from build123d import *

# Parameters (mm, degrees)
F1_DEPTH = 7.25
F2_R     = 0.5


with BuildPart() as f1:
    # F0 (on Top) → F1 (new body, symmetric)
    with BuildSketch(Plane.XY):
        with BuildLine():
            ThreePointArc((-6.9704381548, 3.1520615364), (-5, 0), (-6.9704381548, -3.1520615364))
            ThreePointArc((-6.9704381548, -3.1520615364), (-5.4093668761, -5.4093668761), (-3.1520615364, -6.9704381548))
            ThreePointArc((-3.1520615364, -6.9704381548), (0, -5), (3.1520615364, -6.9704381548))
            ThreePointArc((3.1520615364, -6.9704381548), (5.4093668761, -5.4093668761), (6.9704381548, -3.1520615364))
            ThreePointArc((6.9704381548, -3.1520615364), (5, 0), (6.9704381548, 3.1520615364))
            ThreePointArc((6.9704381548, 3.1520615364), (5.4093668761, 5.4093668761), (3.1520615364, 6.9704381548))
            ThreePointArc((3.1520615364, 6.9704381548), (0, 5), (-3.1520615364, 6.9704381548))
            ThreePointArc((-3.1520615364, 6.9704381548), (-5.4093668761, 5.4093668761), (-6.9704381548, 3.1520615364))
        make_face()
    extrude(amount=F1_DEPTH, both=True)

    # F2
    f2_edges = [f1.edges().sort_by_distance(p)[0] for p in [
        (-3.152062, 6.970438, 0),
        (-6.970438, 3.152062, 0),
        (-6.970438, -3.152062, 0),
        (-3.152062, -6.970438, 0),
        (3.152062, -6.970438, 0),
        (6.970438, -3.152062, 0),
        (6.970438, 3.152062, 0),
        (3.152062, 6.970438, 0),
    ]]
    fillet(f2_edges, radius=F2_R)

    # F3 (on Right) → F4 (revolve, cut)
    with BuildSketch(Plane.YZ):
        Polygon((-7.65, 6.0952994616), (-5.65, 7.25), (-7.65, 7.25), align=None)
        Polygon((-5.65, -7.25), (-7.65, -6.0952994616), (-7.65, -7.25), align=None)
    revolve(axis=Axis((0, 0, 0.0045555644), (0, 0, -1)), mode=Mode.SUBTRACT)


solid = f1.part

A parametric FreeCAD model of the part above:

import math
import FreeCAD as App
import Part
import Sketcher
Q = App.Units.Quantity


def edges_at(feature, points):
    """Names of the edges that pass closest to the given points."""
    edges = feature.Shape.Edges
    near = lambda p: min(range(len(edges)), key=lambda i: edges[i].distToShape(Part.Vertex(*p))[0])
    return sorted({f"Edge{near(p) + 1}" for p in points})

doc = App.newDocument("Part")
params = doc.addObject("Spreadsheet::Sheet", "Params")
for row, (alias, value) in enumerate([
    ("sketch1_radius", "7.65 mm"),
    ("pad1_length", "14.5 mm"),
    ("fillet_radius", "0.5 mm"),
    ("sketch2_width", "2 mm"),
    ("groove_angle", "360 deg"),
], start=1):
    params.set(f"A{row}", alias)
    params.set(f"B{row}", "=" + value)
    params.setAlias(f"B{row}", alias)

body = doc.addObject("PartDesign::Body", "Body")

sketch1 = body.newObject("Sketcher::SketchObject", "Sketch")
sketch1.AttachmentSupport = (doc.getObject("XY_Plane"), [""])
sketch1.MapMode = "FlatFace"
sketch1.addGeometry(Part.ArcOfCircle(Part.Circle(App.Vector(-8.506357, 0, 0), App.Vector(0, 0, 1), 3.506357), math.radians(-64.021215), math.radians(64.021215)), False)
sketch1.addGeometry(Part.ArcOfCircle(Part.Circle(App.Vector(0, 0, 0), App.Vector(0, 0, 1), 7.65), math.radians(-155.667317), math.radians(-114.332683)), False)
sketch1.addGeometry(Part.ArcOfCircle(Part.Circle(App.Vector(0, -8.506357, 0), App.Vector(0, 0, 1), 3.506357), math.radians(25.978785), math.radians(154.021215)), False)
sketch1.addGeometry(Part.ArcOfCircle(Part.Circle(App.Vector(0, 0, 0), App.Vector(0, 0, 1), 7.65), math.radians(-65.667317), math.radians(-24.332683)), False)
sketch1.addGeometry(Part.ArcOfCircle(Part.Circle(App.Vector(8.506357, 0, 0), App.Vector(0, 0, 1), 3.506357), math.radians(115.978785), math.radians(244.021215)), False)
sketch1.addGeometry(Part.ArcOfCircle(Part.Circle(App.Vector(0, 0, 0), App.Vector(0, 0, 1), 7.65), math.radians(24.332683), math.radians(65.667317)), False)
sketch1.addGeometry(Part.ArcOfCircle(Part.Circle(App.Vector(0, 8.506357, 0), App.Vector(0, 0, 1), 3.506357), math.radians(-154.021215), math.radians(-25.978785)), False)
sketch1.addGeometry(Part.ArcOfCircle(Part.Circle(App.Vector(0, 0, 0), App.Vector(0, 0, 1), 7.65), math.radians(114.332683), math.radians(155.667317)), False)
sketch1.addConstraint(Sketcher.Constraint("Coincident", 0, 1, 1, 1))
sketch1.addConstraint(Sketcher.Constraint("Coincident", 1, 2, 2, 2))
sketch1.addConstraint(Sketcher.Constraint("Coincident", 2, 1, 3, 1))
sketch1.addConstraint(Sketcher.Constraint("Coincident", 3, 2, 4, 2))
sketch1.addConstraint(Sketcher.Constraint("Coincident", 4, 1, 5, 1))
sketch1.addConstraint(Sketcher.Constraint("Coincident", 5, 2, 6, 2))
sketch1.addConstraint(Sketcher.Constraint("Coincident", 6, 1, 7, 1))
sketch1.addConstraint(Sketcher.Constraint("Coincident", 7, 2, 0, 2))
sketch1.addConstraint(Sketcher.Constraint("Coincident", 1, 3, -1, 1))
sketch1.addConstraint(Sketcher.Constraint("Coincident", 3, 3, -1, 1))
sketch1.addConstraint(Sketcher.Constraint("Coincident", 5, 3, -1, 1))
sketch1.addConstraint(Sketcher.Constraint("Coincident", 7, 3, -1, 1))
sketch1.addConstraint(Sketcher.Constraint("Equal", 0, 2))
sketch1.addConstraint(Sketcher.Constraint("Equal", 1, 3))
sketch1.addConstraint(Sketcher.Constraint("Equal", 2, 4))
sketch1.addConstraint(Sketcher.Constraint("Equal", 3, 5))
sketch1.addConstraint(Sketcher.Constraint("Equal", 4, 6))
sketch1.addConstraint(Sketcher.Constraint("Equal", 5, 7))
sketch1.addConstraint(Sketcher.Constraint("Symmetric", 0, 3, 4, 3, -1, 1))
sketch1.addConstraint(Sketcher.Constraint("Symmetric", 2, 3, 6, 3, -1, 1))
sketch1.addConstraint(Sketcher.Constraint("PointOnObject", 0, 3, -1))
sketch1.addConstraint(Sketcher.Constraint("PointOnObject", 2, 3, -2))
sketch1.addConstraint(Sketcher.Constraint("Radius", 1, 7.65))
sketch1.addConstraint(Sketcher.Constraint("Radius", 0, 3.506357))
sketch1.addConstraint(Sketcher.Constraint("DistanceX", 0, 1, -1, 1, 6.970438))
sketch1.addConstraint(Sketcher.Constraint("DistanceX", 1, 2, -1, 1, 3.152062))
sketch1.setExpression("Constraints[22]", "Params.sketch1_radius")
pad1 = body.newObject("PartDesign::Pad", "Pad")
pad1.Profile = sketch1
pad1.setExpression("Length", "Params.pad1_length")
pad1.Midplane = True
doc.recompute()

fillet = body.newObject("PartDesign::Fillet", "Fillet")
fillet.Base = (pad1, edges_at(pad1, [
    (-3.152, 6.97, 0),
    (-6.97, 3.152, 0),
    (-6.97, -3.152, 0),
    (-3.152, -6.97, 0),
    (3.152, -6.97, 0),
    (6.97, -3.152, 0),
    (6.97, 3.152, 0),
    (3.152, 6.97, 0),
]))
fillet.setExpression("Radius", "Params.fillet_radius")

sketch2 = body.newObject("Sketcher::SketchObject", "Sketch001")
sketch2.AttachmentSupport = (doc.getObject("YZ_Plane"), [""])
sketch2.MapMode = "FlatFace"
sketch2.addGeometry(Part.LineSegment(App.Vector(-7.65, 6.095299, 0), App.Vector(-5.65, 7.25, 0)), False)
sketch2.addGeometry(Part.LineSegment(App.Vector(-5.65, 7.25, 0), App.Vector(-7.65, 7.25, 0)), False)
sketch2.addGeometry(Part.LineSegment(App.Vector(-7.65, 7.25, 0), App.Vector(-7.65, 6.095299, 0)), False)
sketch2.addGeometry(Part.LineSegment(App.Vector(-5.65, -7.25, 0), App.Vector(-7.65, -6.095299, 0)), False)
sketch2.addGeometry(Part.LineSegment(App.Vector(-7.65, -6.095299, 0), App.Vector(-7.65, -7.25, 0)), False)
sketch2.addGeometry(Part.LineSegment(App.Vector(-7.65, -7.25, 0), App.Vector(-5.65, -7.25, 0)), False)
sketch2.addConstraint(Sketcher.Constraint("Coincident", 0, 2, 1, 1))
sketch2.addConstraint(Sketcher.Constraint("Coincident", 1, 2, 2, 1))
sketch2.addConstraint(Sketcher.Constraint("Coincident", 2, 2, 0, 1))
sketch2.addConstraint(Sketcher.Constraint("Coincident", 3, 2, 4, 1))
sketch2.addConstraint(Sketcher.Constraint("Coincident", 4, 2, 5, 1))
sketch2.addConstraint(Sketcher.Constraint("Coincident", 5, 2, 3, 1))
sketch2.addConstraint(Sketcher.Constraint("Horizontal", 1))
sketch2.addConstraint(Sketcher.Constraint("Vertical", 2))
sketch2.addConstraint(Sketcher.Constraint("Vertical", 4))
sketch2.addConstraint(Sketcher.Constraint("Horizontal", 5))
sketch2.addConstraint(Sketcher.Constraint("Symmetric", 2, 2, 3, 2, -1))
sketch2.addConstraint(Sketcher.Constraint("Symmetric", 0, 2, 5, 2, -1))
sketch2.addConstraint(Sketcher.Constraint("DistanceX", 1, 2, 1, 1, 2.0))
sketch2.addConstraint(Sketcher.Constraint("Angle", 0, Q("30 deg")))
sketch2.addConstraint(Sketcher.Constraint("DistanceY", 4, 2, 1, 2, 14.5))
sketch2.addConstraint(Sketcher.Constraint("DistanceX", 0, 2, -1, 1, 5.65))
sketch2.setExpression("Constraints[12]", "Params.sketch2_width")
groove = body.newObject("PartDesign::Groove", "Groove")
groove.Profile = sketch2
groove.ReferenceAxis = (sketch2, ["V_Axis"])
groove.setExpression("Angle", "Params.groove_angle")

doc.recompute()
